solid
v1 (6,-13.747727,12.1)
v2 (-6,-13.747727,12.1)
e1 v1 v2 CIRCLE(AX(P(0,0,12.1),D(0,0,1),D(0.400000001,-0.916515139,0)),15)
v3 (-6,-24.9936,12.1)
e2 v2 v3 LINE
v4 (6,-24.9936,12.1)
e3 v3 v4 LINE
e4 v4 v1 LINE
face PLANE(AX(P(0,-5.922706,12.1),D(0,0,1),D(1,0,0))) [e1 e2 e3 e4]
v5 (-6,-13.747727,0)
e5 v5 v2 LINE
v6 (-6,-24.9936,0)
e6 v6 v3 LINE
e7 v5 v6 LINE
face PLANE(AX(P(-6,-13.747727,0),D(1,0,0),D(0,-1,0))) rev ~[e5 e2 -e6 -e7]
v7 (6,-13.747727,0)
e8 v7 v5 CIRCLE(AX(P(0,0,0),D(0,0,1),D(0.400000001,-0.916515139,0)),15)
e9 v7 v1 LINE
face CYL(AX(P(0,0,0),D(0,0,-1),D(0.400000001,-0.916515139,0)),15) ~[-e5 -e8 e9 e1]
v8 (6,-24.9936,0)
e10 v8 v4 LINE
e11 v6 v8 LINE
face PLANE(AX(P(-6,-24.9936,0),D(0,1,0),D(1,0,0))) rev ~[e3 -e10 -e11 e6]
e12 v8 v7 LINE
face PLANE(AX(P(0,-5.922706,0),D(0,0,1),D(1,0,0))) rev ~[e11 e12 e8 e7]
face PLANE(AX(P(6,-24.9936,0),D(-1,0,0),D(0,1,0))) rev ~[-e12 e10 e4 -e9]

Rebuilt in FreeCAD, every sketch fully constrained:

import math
import FreeCAD as App
import Part
import Sketcher
Q = App.Units.Quantity

doc = App.newDocument("Part")
body = doc.addObject("PartDesign::Body", "Body")

# Sketch on XY plane
sketch1 = body.newObject("Sketcher::SketchObject", "Sketch")
sketch1.AttachmentSupport = (doc.getObject("XY_Plane"), [""])
sketch1.MapMode = "FlatFace"
sketch1.addGeometry([
    Part.LineSegment(App.Vector(6, -25, 0), App.Vector(6, -14, 0)),
    Part.ArcOfCircle(Part.Circle(App.Vector(0, 0, 0), App.Vector(0, 0, 1), 15), math.radians(-66), math.radians(246)),
    Part.LineSegment(App.Vector(-6, -14, 0), App.Vector(-6, -25, 0)),
    Part.LineSegment(App.Vector(-6, -25, 0), App.Vector(6, -25, 0)),
], False)
sketch1.addConstraint([
    Sketcher.Constraint("Coincident", 0, 2, 1, 1),
    Sketcher.Constraint("Coincident", 1, 2, 2, 1),
    Sketcher.Constraint("Coincident", 2, 2, 3, 1),
    Sketcher.Constraint("Coincident", 3, 2, 0, 1),
    Sketcher.Constraint("Vertical", 0),
    Sketcher.Constraint("Vertical", 2),
    Sketcher.Constraint("Horizontal", 3),
    Sketcher.Constraint("Coincident", 1, 3, -1, 1),
    Sketcher.Constraint("Horizontal", 0, 2, 1, 2),
    Sketcher.Constraint("Radius", 1, Q("15 mm")),
    Sketcher.Constraint("DistanceX", 3, 1, 3, 2, Q("12 mm")),
    Sketcher.Constraint("DistanceY", 2, 2, -1, 1, Q("24.9936 mm")),
])
pad1 = body.newObject("PartDesign::Pad", "Pad")
pad1.Profile = sketch1
pad1.Length = 12.1

doc.recompute()
